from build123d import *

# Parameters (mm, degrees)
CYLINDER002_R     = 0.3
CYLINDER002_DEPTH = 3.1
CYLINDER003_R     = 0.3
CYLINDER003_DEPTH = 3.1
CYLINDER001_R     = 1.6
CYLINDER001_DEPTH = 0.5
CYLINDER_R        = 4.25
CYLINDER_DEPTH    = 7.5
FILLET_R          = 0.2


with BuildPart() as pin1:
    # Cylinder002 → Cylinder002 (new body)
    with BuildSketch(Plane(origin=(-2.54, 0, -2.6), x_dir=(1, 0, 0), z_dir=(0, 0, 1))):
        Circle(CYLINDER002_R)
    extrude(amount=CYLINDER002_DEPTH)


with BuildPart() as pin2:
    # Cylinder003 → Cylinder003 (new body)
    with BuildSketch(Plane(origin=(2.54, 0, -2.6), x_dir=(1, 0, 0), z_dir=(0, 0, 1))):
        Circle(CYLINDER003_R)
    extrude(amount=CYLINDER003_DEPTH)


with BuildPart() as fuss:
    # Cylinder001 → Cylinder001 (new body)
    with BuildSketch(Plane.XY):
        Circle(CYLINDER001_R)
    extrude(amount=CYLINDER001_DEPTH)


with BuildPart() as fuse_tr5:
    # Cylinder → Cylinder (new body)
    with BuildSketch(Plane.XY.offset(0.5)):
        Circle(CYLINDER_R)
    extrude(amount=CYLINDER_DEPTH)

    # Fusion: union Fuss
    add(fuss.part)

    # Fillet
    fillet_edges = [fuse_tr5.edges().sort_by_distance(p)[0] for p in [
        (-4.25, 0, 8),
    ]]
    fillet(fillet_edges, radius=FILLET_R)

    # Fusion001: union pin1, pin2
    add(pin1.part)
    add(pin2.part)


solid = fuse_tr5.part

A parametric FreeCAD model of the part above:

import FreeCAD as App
import Part
import Sketcher


def edges_at(feature, points):
    """Names of the edges that pass closest to the given points."""
    edges = feature.Shape.Edges
    near = lambda p: min(range(len(edges)), key=lambda i: edges[i].distToShape(Part.Vertex(*p))[0])
    return sorted({f"Edge{near(p) + 1}" for p in points})

doc = App.newDocument("Part")
body = doc.addObject("PartDesign::Body", "Body")

sketch1 = body.newObject("Sketcher::SketchObject", "Sketch")
sketch1.AttachmentSupport = (doc.getObject("XY_Plane"), [""])
sketch1.MapMode = "FlatFace"
sketch1.AttachmentOffset = App.Placement(App.Vector(0, 0, -2.6), App.Rotation())
sketch1.addGeometry(Part.Circle(App.Vector(-2.54, 0, 0), App.Vector(0, 0, 1), 0.3), False)
sketch1.addConstraint(Sketcher.Constraint("PointOnObject", 0, 3, -1))
sketch1.addConstraint(Sketcher.Constraint("Diameter", 0, 0.6))
sketch1.addConstraint(Sketcher.Constraint("DistanceX", 0, 3, -1, 1, 2.54))
pad1 = body.newObject("PartDesign::Pad", "Pad")
pad1.Profile = sketch1
pad1.Length = 3.1
body2 = doc.addObject("PartDesign::Body", "Body001")

sketch2 = body2.newObject("Sketcher::SketchObject", "Sketch001")
sketch2.AttachmentSupport = (doc.getObject("XY_Plane001"), [""])
sketch2.MapMode = "FlatFace"
sketch2.AttachmentOffset = App.Placement(App.Vector(0, 0, -2.6), App.Rotation())
sketch2.addGeometry(Part.Circle(App.Vector(2.54, 0, 0), App.Vector(0, 0, 1), 0.3), False)
sketch2.addConstraint(Sketcher.Constraint("PointOnObject", 0, 3, -1))
sketch2.addConstraint(Sketcher.Constraint("Diameter", 0, 0.6))
sketch2.addConstraint(Sketcher.Constraint("DistanceX", -1, 1, 0, 3, 2.54))
pad2 = body2.newObject("PartDesign::Pad", "Pad001")
pad2.Profile = sketch2
pad2.Length = 3.1
body3 = doc.addObject("PartDesign::Body", "Body002")

sketch3 = body3.newObject("Sketcher::SketchObject", "Sketch002")
sketch3.AttachmentSupport = (doc.getObject("XY_Plane002"), [""])
sketch3.MapMode = "FlatFace"
sketch3.addGeometry(Part.Circle(App.Vector(0, 0, 0), App.Vector(0, 0, 1), 1.6), False)
sketch3.addConstraint(Sketcher.Constraint("Coincident", 0, 3, -1, 1))
sketch3.addConstraint(Sketcher.Constraint("Diameter", 0, 3.2))
pad3 = body3.newObject("PartDesign::Pad", "Pad002")
pad3.Profile = sketch3
pad3.Length = 0.5
body4 = doc.addObject("PartDesign::Body", "Body003")

sketch4 = body4.newObject("Sketcher::SketchObject", "Sketch003")
sketch4.AttachmentSupport = (doc.getObject("XY_Plane003"), [""])
sketch4.MapMode = "FlatFace"
sketch4.AttachmentOffset = App.Placement(App.Vector(0, 0, 0.5), App.Rotation())
sketch4.addGeometry(Part.Circle(App.Vector(0, 0, 0), App.Vector(0, 0, 1), 4.2), False)
sketch4.addConstraint(Sketcher.Constraint("Coincident", 0, 3, -1, 1))
sketch4.addConstraint(Sketcher.Constraint("Diameter", 0, 8.5))
pad4 = body4.newObject("PartDesign::Pad", "Pad003")
pad4.Profile = sketch4
pad4.Length = 7.5
doc.recompute()

boolean = body4.newObject("PartDesign::Boolean", "Boolean")
boolean.Type = "Fuse"
boolean.addObjects([body3])
doc.recompute()

fillet = body4.newObject("PartDesign::Fillet", "Fillet")
fillet.Base = (boolean, edges_at(boolean, [(-4.25, 0, 8)]))
fillet.Radius = 0.2
doc.recompute()

boolean2 = body4.newObject("PartDesign::Boolean", "Boolean001")
boolean2.Type = "Fuse"
boolean2.addObjects([body])
doc.recompute()

boolean3 = body4.newObject("PartDesign::Boolean", "Boolean002")
boolean3.Type = "Fuse"
boolean3.addObjects([body2])

doc.recompute()
